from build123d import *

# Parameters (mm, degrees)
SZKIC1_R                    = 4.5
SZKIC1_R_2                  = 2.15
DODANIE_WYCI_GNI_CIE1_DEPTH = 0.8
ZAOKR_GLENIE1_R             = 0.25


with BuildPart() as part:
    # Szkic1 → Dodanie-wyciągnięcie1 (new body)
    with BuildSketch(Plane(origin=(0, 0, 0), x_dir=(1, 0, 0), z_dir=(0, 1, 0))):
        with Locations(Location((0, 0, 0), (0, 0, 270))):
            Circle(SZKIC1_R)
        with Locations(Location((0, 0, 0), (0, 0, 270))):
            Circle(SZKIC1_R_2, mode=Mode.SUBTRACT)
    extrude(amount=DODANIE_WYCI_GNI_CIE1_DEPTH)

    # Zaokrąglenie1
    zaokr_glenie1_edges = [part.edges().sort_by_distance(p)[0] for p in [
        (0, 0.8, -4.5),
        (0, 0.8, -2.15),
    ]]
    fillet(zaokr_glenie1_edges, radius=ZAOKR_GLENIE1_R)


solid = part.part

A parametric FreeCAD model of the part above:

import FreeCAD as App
import Part
import Sketcher
from FreeCAD import Vector


def edges_at(feature, points):
    """Names of the edges that pass closest to the given points."""
    edges = feature.Shape.Edges
    near = lambda p: min(range(len(edges)), key=lambda i: edges[i].distToShape(Part.Vertex(*p))[0])
    return sorted({f"Edge{near(p) + 1}" for p in points})

doc = App.newDocument("Part")
body = doc.addObject("PartDesign::Body", "Body")

sketch1 = body.newObject("Sketcher::SketchObject", "Sketch")
sketch1.AttachmentSupport = (doc.getObject("XZ_Plane"), [""])
sketch1.MapMode = "FlatFace"
sketch1.addGeometry(Part.Circle(Vector(0, 0, 0), Vector(0, 0, 1), 4.5), False)
sketch1.addGeometry(Part.Circle(Vector(0, 0, 0), Vector(0, 0, 1), 2.15), False)
sketch1.addConstraint(Sketcher.Constraint("Coincident", 0, 3, -1, 1))
sketch1.addConstraint(Sketcher.Constraint("Coincident", 1, 3, -1, 1))
sketch1.addConstraint(Sketcher.Constraint("Diameter", 0, 9.0))
sketch1.addConstraint(Sketcher.Constraint("Diameter", 1, 4.3))
pad1 = body.newObject("PartDesign::Pad", "Pad")
pad1.Profile = sketch1
pad1.Length = 0.8
pad1.Reversed = True
doc.recompute()

fillet = body.newObject("PartDesign::Fillet", "Fillet")
fillet.Base = (pad1, edges_at(pad1, [(0, 0.8, -4.5), (0, 0.8, -2.15)]))
fillet.Radius = 0.25

doc.recompute()
